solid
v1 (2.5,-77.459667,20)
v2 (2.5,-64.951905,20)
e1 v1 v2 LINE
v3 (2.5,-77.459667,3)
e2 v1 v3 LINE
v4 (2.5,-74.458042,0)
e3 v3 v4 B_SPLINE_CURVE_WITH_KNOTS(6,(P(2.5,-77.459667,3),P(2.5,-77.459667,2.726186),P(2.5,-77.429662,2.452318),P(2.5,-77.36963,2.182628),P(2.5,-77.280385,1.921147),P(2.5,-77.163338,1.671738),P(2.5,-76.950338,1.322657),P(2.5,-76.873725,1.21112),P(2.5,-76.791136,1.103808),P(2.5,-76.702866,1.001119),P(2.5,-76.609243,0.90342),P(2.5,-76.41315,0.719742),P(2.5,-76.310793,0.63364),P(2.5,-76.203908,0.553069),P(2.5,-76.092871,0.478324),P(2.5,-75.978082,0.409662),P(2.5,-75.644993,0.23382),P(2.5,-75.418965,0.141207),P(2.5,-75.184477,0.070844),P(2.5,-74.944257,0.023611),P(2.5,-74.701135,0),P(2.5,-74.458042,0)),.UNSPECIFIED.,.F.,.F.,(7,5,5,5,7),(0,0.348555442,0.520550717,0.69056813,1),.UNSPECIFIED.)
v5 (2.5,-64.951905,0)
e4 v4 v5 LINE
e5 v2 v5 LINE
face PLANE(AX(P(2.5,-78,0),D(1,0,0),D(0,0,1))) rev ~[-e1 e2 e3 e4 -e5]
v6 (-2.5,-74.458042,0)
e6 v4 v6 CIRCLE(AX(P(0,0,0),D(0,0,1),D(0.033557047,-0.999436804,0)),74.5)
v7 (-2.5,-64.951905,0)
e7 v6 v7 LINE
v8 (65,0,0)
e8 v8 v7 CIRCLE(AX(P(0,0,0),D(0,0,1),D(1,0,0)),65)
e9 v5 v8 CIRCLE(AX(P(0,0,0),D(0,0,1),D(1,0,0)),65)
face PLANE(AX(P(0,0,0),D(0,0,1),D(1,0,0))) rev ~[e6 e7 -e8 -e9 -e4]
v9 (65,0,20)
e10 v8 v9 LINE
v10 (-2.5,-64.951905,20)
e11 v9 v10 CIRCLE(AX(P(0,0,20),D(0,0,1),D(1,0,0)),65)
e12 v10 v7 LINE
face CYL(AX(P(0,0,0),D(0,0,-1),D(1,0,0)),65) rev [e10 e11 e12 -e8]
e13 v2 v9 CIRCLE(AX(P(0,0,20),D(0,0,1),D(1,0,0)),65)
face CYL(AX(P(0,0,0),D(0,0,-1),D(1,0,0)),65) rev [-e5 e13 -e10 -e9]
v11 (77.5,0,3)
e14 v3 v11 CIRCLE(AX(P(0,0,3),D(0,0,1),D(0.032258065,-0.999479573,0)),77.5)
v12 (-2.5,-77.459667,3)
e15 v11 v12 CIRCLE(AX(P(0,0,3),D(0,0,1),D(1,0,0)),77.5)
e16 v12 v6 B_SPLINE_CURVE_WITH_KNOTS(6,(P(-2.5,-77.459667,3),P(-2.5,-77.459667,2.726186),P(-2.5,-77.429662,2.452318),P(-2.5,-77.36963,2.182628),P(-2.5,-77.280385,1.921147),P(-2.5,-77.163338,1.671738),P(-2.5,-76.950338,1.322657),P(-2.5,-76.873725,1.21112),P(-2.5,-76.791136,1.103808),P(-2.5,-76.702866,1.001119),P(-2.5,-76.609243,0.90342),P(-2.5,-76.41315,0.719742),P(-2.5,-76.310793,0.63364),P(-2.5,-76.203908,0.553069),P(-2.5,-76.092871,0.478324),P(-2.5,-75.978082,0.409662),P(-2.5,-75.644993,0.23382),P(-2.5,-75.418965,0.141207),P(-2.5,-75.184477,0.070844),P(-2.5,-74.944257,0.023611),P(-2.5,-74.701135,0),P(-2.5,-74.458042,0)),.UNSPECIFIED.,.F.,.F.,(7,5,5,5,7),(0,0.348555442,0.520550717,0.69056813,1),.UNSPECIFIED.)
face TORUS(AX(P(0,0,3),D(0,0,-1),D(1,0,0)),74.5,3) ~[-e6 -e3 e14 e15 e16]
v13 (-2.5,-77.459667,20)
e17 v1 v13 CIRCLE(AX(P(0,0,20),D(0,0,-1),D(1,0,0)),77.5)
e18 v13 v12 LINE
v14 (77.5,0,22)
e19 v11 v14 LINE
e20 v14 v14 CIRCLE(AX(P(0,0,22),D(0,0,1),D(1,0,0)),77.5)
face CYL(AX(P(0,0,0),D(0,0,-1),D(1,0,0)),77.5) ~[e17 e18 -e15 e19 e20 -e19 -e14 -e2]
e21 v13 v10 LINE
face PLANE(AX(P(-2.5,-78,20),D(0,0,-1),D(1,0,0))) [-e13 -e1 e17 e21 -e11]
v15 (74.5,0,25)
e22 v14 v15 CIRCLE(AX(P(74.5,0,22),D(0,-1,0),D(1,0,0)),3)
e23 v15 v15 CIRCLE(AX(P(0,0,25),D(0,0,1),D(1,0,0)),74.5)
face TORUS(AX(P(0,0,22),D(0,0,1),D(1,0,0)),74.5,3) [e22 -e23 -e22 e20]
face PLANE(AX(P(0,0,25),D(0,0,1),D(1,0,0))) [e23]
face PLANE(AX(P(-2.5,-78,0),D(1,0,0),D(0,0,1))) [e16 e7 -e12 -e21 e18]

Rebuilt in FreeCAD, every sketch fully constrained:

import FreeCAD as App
import Part
import Sketcher
from FreeCAD import Vector
Q = App.Units.Quantity


def edges_at(feature, points):
    """Names of the edges that pass closest to the given points."""
    edges = feature.Shape.Edges
    near = lambda p: min(range(len(edges)), key=lambda i: edges[i].distToShape(Part.Vertex(*p))[0])
    return sorted({f"Edge{near(p) + 1}" for p in points})


def add_polygon(sketch, points):
    """Adds a closed chain of lines whose ends are joined by coincident constraints."""
    first, n = sketch.GeometryCount, len(points)
    for a, b in zip(points, points[1:] + points[:1]):
        sketch.addGeometry(Part.LineSegment(App.Vector(*a, 0), App.Vector(*b, 0)), False)
    for i in range(n):
        sketch.addConstraint(Sketcher.Constraint("Coincident", first + i, 2, first + (i + 1) % n, 1))

doc = App.newDocument("Part")
body = doc.addObject("PartDesign::Body", "Body")

sketch1 = body.newObject("Sketcher::SketchObject", "Sketch")
sketch1.AttachmentSupport = (doc.getObject("XY_Plane"), [""])
sketch1.MapMode = "FlatFace"
sketch1.addGeometry(Part.Circle(Vector(0, 0, 0), Vector(0, 0, 1), 78), False)
sketch1.addConstraint(Sketcher.Constraint("Coincident", 0, 3, -1, 1))
sketch1.addConstraint(Sketcher.Constraint("Diameter", 0, Q("155 mm")))
pad1 = body.newObject("PartDesign::Pad", "Pad")
pad1.Profile = sketch1
pad1.Length = 25
doc.recompute()

fillet = body.newObject("PartDesign::Fillet", "Fillet")
fillet.Base = (pad1, edges_at(pad1, [(-77.5, 0, 25)]))
fillet.Radius = 3

sketch2 = body.newObject("Sketcher::SketchObject", "Sketch001")
sketch2.AttachmentSupport = (doc.getObject("XY_Plane"), [""])
sketch2.MapMode = "FlatFace"
sketch2.addGeometry(Part.Circle(Vector(0, 0, 0), Vector(0, 0, 1), 65), False)
sketch2.addConstraint(Sketcher.Constraint("Coincident", 0, 3, -1, 1))
sketch2.addConstraint(Sketcher.Constraint("Diameter", 0, Q("130 mm")))
pocket1 = body.newObject("PartDesign::Pocket", "Pocket")
pocket1.Profile = sketch2
pocket1.Length = 20
pocket1.Reversed = True

sketch3 = body.newObject("Sketcher::SketchObject", "Sketch002")
sketch3.AttachmentSupport = (doc.getObject("XZ_Plane"), [""])
sketch3.MapMode = "FlatFace"
sketch3.AttachmentOffset = App.Placement(Vector(0, 0, 78), App.Rotation())
add_polygon(sketch3, [(-2, 20), (-2, 0), (2, 0), (2, 20)])
sketch3.addConstraint(Sketcher.Constraint("Vertical", 0))
sketch3.addConstraint(Sketcher.Constraint("Horizontal", 1))
sketch3.addConstraint(Sketcher.Constraint("Vertical", 2))
sketch3.addConstraint(Sketcher.Constraint("Horizontal", 3))
sketch3.addConstraint(Sketcher.Constraint("Symmetric", 0, 2, 1, 2, -1, 1))
sketch3.addConstraint(Sketcher.Constraint("DistanceX", 1, 1, 1, 2, Q("5 mm")))
sketch3.addConstraint(Sketcher.Constraint("DistanceY", 0, 2, 0, 1, Q("20 mm")))
pocket2 = body.newObject("PartDesign::Pocket", "Pocket001")
pocket2.Profile = sketch3
pocket2.Length = 15
doc.recompute()

fillet2 = body.newObject("PartDesign::Fillet", "Fillet001")
fillet2.Base = (pocket2, edges_at(pocket2, [(55.678, -53.91, 0), (-53.91, 55.678, 0)]))
fillet2.Radius = 3

doc.recompute()
